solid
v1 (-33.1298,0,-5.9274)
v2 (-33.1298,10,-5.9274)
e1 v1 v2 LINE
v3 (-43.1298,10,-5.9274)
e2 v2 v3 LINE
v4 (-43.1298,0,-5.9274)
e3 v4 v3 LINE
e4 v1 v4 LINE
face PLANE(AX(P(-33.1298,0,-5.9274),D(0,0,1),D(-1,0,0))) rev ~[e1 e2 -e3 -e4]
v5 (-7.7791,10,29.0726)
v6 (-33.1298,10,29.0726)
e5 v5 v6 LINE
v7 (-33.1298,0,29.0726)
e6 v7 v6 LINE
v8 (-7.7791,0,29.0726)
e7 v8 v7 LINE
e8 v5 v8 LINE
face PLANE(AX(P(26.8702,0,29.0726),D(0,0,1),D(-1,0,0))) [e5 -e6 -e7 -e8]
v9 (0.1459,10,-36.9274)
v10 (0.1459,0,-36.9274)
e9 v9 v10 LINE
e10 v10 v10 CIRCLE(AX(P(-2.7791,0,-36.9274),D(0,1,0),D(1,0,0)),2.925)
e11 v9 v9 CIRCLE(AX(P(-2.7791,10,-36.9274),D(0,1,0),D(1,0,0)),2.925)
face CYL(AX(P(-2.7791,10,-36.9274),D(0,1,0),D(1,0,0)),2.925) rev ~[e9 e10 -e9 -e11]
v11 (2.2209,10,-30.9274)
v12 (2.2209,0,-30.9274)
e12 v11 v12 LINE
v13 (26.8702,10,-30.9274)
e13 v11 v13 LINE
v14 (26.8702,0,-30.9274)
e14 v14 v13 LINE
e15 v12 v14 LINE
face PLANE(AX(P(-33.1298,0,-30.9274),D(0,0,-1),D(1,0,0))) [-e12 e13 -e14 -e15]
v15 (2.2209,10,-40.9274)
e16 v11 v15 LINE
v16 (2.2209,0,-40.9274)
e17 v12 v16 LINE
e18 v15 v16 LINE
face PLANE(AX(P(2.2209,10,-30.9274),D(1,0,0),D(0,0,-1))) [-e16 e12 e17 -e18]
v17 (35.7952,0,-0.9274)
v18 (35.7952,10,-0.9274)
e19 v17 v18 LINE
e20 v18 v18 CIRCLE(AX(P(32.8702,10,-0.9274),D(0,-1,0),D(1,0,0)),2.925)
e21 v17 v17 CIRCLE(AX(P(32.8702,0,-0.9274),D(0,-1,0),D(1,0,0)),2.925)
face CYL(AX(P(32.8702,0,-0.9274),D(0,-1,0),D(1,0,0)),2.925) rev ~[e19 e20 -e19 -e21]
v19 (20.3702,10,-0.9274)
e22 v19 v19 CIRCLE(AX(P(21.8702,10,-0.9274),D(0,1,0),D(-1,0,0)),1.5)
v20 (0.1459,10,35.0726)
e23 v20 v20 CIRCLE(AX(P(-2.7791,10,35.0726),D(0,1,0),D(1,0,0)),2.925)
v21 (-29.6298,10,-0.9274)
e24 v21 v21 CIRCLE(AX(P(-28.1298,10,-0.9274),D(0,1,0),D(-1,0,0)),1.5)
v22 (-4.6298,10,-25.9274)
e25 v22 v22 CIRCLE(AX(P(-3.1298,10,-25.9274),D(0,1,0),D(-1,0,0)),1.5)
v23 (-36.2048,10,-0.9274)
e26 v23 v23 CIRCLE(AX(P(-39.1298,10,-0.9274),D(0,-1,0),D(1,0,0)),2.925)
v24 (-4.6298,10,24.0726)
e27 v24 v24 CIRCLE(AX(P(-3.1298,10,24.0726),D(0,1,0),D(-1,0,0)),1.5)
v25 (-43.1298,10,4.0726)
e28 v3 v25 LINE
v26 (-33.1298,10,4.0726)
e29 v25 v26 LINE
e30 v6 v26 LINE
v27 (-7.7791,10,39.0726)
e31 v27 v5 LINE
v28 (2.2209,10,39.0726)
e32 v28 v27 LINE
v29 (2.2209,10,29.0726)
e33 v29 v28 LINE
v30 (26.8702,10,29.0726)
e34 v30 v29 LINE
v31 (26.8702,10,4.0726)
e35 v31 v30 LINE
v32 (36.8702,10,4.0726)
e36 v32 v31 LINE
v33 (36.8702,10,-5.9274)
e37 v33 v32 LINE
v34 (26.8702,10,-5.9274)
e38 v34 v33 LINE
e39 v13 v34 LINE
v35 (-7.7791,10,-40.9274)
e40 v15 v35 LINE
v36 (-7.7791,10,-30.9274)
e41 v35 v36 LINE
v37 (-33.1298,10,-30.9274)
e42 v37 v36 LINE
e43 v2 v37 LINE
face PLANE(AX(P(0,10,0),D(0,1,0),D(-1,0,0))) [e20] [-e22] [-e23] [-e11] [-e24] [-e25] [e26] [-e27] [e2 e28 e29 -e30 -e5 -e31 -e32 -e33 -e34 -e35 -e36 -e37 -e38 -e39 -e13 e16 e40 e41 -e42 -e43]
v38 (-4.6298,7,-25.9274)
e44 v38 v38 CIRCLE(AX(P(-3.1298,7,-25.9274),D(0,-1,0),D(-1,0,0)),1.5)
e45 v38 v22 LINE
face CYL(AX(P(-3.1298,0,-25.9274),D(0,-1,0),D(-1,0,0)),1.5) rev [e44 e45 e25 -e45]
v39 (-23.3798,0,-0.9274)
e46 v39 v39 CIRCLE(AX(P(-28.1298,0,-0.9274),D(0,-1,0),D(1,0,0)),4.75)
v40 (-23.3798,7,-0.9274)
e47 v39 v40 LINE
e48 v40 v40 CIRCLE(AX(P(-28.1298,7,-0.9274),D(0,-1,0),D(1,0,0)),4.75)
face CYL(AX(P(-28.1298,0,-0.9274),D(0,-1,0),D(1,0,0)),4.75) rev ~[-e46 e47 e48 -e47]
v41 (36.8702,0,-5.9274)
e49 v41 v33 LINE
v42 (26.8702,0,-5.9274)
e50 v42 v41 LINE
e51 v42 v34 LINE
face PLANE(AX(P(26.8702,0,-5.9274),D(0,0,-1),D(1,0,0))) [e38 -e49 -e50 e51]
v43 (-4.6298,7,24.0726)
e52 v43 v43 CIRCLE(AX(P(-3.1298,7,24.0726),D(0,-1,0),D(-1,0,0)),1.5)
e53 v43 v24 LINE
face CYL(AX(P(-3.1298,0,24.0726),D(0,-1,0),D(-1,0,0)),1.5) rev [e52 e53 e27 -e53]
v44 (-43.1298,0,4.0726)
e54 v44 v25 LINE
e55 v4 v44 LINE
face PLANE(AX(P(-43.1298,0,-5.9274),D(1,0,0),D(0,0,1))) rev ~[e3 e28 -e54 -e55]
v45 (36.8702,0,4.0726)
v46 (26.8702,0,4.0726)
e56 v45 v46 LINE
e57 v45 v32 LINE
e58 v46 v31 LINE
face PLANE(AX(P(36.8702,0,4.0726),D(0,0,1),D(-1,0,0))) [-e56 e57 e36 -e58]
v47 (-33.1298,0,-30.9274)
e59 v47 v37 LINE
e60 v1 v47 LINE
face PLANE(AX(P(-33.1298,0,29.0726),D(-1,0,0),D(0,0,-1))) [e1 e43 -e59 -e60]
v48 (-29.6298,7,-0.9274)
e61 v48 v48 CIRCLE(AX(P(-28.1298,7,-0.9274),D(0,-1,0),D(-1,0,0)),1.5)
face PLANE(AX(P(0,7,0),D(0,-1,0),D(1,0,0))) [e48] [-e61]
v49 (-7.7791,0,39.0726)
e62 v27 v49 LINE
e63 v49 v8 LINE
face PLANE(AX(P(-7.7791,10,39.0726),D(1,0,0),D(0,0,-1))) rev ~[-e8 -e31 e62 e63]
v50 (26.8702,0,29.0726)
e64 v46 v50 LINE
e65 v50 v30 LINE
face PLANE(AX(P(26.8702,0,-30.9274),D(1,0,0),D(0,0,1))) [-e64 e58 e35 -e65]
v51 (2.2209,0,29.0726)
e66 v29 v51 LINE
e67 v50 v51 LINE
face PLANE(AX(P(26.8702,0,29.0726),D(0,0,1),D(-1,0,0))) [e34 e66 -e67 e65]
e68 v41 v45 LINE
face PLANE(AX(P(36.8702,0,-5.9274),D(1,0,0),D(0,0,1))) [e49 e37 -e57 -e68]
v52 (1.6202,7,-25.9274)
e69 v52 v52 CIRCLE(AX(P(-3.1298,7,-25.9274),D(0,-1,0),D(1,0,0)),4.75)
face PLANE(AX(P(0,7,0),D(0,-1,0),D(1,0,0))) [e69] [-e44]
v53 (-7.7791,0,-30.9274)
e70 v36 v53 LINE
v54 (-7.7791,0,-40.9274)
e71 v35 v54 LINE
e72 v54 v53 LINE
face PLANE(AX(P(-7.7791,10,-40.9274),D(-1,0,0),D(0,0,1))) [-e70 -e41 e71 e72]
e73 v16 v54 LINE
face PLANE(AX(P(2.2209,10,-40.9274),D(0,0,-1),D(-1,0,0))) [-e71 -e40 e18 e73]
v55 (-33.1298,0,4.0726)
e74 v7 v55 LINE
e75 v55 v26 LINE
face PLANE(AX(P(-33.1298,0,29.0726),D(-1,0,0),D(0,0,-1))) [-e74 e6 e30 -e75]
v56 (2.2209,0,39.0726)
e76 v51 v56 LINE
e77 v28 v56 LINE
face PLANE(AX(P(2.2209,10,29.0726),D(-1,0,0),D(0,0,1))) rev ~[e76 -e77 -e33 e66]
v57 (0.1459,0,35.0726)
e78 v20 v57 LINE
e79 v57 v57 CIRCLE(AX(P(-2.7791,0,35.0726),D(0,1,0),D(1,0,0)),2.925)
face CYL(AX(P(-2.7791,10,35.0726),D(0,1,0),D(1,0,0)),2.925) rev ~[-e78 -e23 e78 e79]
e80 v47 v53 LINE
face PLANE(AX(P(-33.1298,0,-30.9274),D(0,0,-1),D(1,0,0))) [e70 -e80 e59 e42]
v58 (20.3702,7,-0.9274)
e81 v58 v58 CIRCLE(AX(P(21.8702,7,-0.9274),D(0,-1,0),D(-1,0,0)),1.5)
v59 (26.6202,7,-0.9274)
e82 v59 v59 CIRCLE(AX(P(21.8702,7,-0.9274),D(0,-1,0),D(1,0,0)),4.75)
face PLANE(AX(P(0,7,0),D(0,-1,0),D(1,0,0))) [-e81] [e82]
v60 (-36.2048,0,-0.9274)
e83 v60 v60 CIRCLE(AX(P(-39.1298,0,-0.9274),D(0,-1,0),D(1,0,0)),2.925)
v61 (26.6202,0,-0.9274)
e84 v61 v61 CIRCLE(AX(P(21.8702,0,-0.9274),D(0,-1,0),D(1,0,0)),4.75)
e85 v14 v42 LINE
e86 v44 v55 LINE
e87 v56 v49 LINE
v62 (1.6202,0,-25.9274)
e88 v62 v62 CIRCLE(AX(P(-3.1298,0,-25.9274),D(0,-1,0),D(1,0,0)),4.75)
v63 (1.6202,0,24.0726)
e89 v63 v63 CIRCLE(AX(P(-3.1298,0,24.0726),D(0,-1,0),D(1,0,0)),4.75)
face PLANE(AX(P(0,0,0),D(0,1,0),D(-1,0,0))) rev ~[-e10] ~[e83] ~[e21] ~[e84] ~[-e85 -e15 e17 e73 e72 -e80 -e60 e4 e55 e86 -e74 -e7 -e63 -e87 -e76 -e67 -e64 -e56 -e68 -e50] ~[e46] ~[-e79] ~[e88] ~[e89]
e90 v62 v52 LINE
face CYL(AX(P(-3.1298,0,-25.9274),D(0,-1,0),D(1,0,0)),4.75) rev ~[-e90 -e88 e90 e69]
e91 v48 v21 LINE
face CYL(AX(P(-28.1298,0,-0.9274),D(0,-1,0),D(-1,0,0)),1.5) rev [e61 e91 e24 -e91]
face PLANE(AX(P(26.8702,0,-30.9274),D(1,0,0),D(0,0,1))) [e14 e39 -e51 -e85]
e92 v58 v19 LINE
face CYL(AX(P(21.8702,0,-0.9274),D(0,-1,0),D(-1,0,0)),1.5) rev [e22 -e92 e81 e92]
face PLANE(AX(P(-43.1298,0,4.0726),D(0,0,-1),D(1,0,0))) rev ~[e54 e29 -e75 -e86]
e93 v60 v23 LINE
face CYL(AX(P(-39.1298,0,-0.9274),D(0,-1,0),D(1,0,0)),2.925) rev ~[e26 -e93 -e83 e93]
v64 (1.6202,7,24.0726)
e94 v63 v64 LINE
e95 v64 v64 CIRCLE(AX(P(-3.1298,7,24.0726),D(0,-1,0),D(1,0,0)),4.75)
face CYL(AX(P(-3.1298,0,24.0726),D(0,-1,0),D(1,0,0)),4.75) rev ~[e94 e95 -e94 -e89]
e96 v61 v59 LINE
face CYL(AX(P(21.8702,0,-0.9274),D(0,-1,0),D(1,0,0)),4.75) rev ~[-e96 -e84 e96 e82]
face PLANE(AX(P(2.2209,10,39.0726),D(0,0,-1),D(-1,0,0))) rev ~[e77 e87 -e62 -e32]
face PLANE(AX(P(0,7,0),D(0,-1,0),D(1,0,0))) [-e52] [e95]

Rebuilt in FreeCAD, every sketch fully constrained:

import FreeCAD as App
import Part
import Sketcher
Q = App.Units.Quantity

doc = App.newDocument("Part")
body = doc.addObject("PartDesign::Body", "Body")

# Sketch on XZ plane
sketch1 = body.newObject("Sketcher::SketchObject", "Sketch")
sketch1.AttachmentSupport = (doc.getObject("XZ_Plane"), [""])
sketch1.MapMode = "FlatFace"
sketch1.addGeometry([
    Part.LineSegment(App.Vector(26.9, -30.9, 0), App.Vector(-33.1, -30.9, 0)),  # 0
    Part.LineSegment(App.Vector(-33.1, -30.9, 0), App.Vector(-33.1, 29.1, 0)),  # 1
    Part.LineSegment(App.Vector(-33.1, 29.1, 0), App.Vector(26.9, 29.1, 0)),  # 2
    Part.LineSegment(App.Vector(26.9, 29.1, 0), App.Vector(26.9, -30.9, 0)),  # 3
    Part.Circle(App.Vector(-3.1, -25.9, 0), App.Vector(0, 0, 1), 1.5),  # 4
    Part.Circle(App.Vector(21.9, -0.9, 0), App.Vector(0, 0, 1), 1.5),  # 5
    Part.Circle(App.Vector(-28.1, -0.9, 0), App.Vector(0, 0, 1), 1.5),  # 6
    Part.Circle(App.Vector(-3.1, 24.1, 0), App.Vector(0, 0, 1), 1.5),  # 7
], False)
sketch1.addConstraint([
    Sketcher.Constraint("Coincident", 0, 2, 1, 1),
    Sketcher.Constraint("Coincident", 1, 2, 2, 1),
    Sketcher.Constraint("Coincident", 2, 2, 3, 1),
    Sketcher.Constraint("Coincident", 3, 2, 0, 1),
    Sketcher.Constraint("Horizontal", 0),
    Sketcher.Constraint("Vertical", 1),
    Sketcher.Constraint("Horizontal", 2),
    Sketcher.Constraint("Vertical", 3),
    Sketcher.Constraint("Equal", 4, 5),
    Sketcher.Constraint("Equal", 5, 6),
    Sketcher.Constraint("Equal", 6, 7),
    Sketcher.Constraint("Horizontal", 5, 3, 6, 3),
    Sketcher.Constraint("Vertical", 4, 3, 7, 3),
    Sketcher.Constraint("Equal", 2, 1),
    Sketcher.Constraint("Diameter", 4, Q("3 mm")),
    Sketcher.Constraint("DistanceX", 0, 2, 0, 1, Q("60 mm")),
    Sketcher.Constraint("DistanceX", 6, 3, 5, 3, Q("50 mm")),
    Sketcher.Constraint("DistanceY", 4, 3, 7, 3, Q("50 mm")),
    Sketcher.Constraint("DistanceX", 0, 2, 6, 3, Q("5 mm")),
    Sketcher.Constraint("DistanceY", 0, 2, 6, 3, Q("30 mm")),
    Sketcher.Constraint("DistanceX", 0, 2, 4, 3, Q("30 mm")),
    Sketcher.Constraint("DistanceY", 0, 2, 4, 3, Q("5 mm")),
    Sketcher.Constraint("DistanceX", 4, 3, -1, 1, Q("3.1298 mm")),
    Sketcher.Constraint("DistanceY", 4, 3, -1, 1, Q("25.9274 mm")),
])
pad1 = body.newObject("PartDesign::Pad", "Pad")
pad1.Profile = sketch1
pad1.Length = 10
pad1.Reversed = True

# Sketch on XZ plane
sketch2 = body.newObject("Sketcher::SketchObject", "Sketch001")
sketch2.AttachmentSupport = (doc.getObject("XZ_Plane"), [""])
sketch2.MapMode = "FlatFace"
sketch2.AttachmentOffset = App.Placement(App.Vector(0, 0, -10), App.Rotation())
sketch2.addGeometry([
    Part.LineSegment(App.Vector(-8, -31, 0), App.Vector(2, -31, 0)),  # 0
    Part.LineSegment(App.Vector(2, -31, 0), App.Vector(2, -41, 0)),  # 1
    Part.LineSegment(App.Vector(2, -41, 0), App.Vector(-8, -41, 0)),  # 2
    Part.LineSegment(App.Vector(-8, -41, 0), App.Vector(-8, -31, 0)),  # 3
    Part.LineSegment(App.Vector(2, 29, 0), App.Vector(-8, 29, 0)),  # 4
    Part.LineSegment(App.Vector(-8, 29, 0), App.Vector(-8, 39, 0)),  # 5
    Part.LineSegment(App.Vector(-8, 39, 0), App.Vector(2, 39, 0)),  # 6
    Part.LineSegment(App.Vector(2, 39, 0), App.Vector(2, 29, 0)),  # 7
], False)
sketch2.addConstraint([
    Sketcher.Constraint("Coincident", 0, 2, 1, 1),
    Sketcher.Constraint("Coincident", 1, 2, 2, 1),
    Sketcher.Constraint("Coincident", 2, 2, 3, 1),
    Sketcher.Constraint("Coincident", 3, 2, 0, 1),
    Sketcher.Constraint("Coincident", 4, 2, 5, 1),
    Sketcher.Constraint("Coincident", 5, 2, 6, 1),
    Sketcher.Constraint("Coincident", 6, 2, 7, 1),
    Sketcher.Constraint("Coincident", 7, 2, 4, 1),
    Sketcher.Constraint("Horizontal", 0),
    Sketcher.Constraint("Vertical", 1),
    Sketcher.Constraint("Horizontal", 2),
    Sketcher.Constraint("Vertical", 3),
    Sketcher.Constraint("Horizontal", 4),
    Sketcher.Constraint("Vertical", 5),
    Sketcher.Constraint("Horizontal", 6),
    Sketcher.Constraint("Vertical", 7),
    Sketcher.Constraint("Vertical", 3, 2, 4, 2),
    Sketcher.Constraint("Vertical", 1, 2, 6, 2),
    Sketcher.Constraint("Equal", 6, 1),
    Sketcher.Constraint("Equal", 3, 5),
    Sketcher.Constraint("DistanceX", 0, 1, 0, 2, Q("10 mm")),
    Sketcher.Constraint("DistanceY", 3, 2, 4, 2, Q("60 mm")),
    Sketcher.Constraint("DistanceX", -1, 1, 0, 2, Q("2.221 mm")),
    Sketcher.Constraint("DistanceY", 0, 2, -1, 1, Q("30.9274 mm")),
])
pad2 = body.newObject("PartDesign::Pad", "Pad001")
pad2.Profile = sketch2
pad2.Length = 10

# Sketch on XZ plane
sketch3 = body.newObject("Sketcher::SketchObject", "Sketch002")
sketch3.AttachmentSupport = (doc.getObject("XZ_Plane"), [""])
sketch3.MapMode = "FlatFace"
sketch3.AttachmentOffset = App.Placement(App.Vector(0, 0, -10), App.Rotation())
sketch3.addGeometry([
    Part.Circle(App.Vector(-2.8, -36.9, 0), App.Vector(0, 0, 1), 2.9),
    Part.Circle(App.Vector(-2.8, 35.1, 0), App.Vector(0, 0, 1), 2.9),
], False)
sketch3.addConstraint([
    Sketcher.Constraint("Equal", 0, 1),
    Sketcher.Constraint("Vertical", 0, 3, 1, 3),
    Sketcher.Constraint("Diameter", 0, Q("5.85 mm")),
    Sketcher.Constraint("DistanceY", 0, 3, 1, 3, Q("72 mm")),
    Sketcher.Constraint("DistanceX", 0, 3, -1, 1, Q("2.779 mm")),
    Sketcher.Constraint("DistanceY", 0, 3, -1, 1, Q("36.9274 mm")),
])
pocket1 = body.newObject("PartDesign::Pocket", "Pocket")
pocket1.Profile = sketch3
pocket1.Type = "ThroughAll"
pocket1.Reversed = True

# Sketch on XZ plane
sketch4 = body.newObject("Sketcher::SketchObject", "Sketch003")
sketch4.AttachmentSupport = (doc.getObject("XZ_Plane"), [""])
sketch4.MapMode = "FlatFace"
sketch4.addGeometry([
    Part.Circle(App.Vector(-3.1, 24.1, 0), App.Vector(0, 0, 1), 4.8),  # 0
    Part.Circle(App.Vector(-3.1, 24.1, 0), App.Vector(0, 0, 1), 1.5),  # 1
    Part.Circle(App.Vector(21.9, -0.9, 0), App.Vector(0, 0, 1), 4.8),  # 2
    Part.Circle(App.Vector(21.9, -0.9, 0), App.Vector(0, 0, 1), 1.5),  # 3
    Part.Circle(App.Vector(-3.1, -25.9, 0), App.Vector(0, 0, 1), 4.8),  # 4
    Part.Circle(App.Vector(-3.1, -25.9, 0), App.Vector(0, 0, 1), 1.5),  # 5
    Part.Circle(App.Vector(-28.1, -0.9, 0), App.Vector(0, 0, 1), 4.8),  # 6
    Part.Circle(App.Vector(-28.1, -0.9, 0), App.Vector(0, 0, 1), 1.5),  # 7
], False)
sketch4.addConstraint([
    Sketcher.Constraint("Coincident", 1, 3, 0, 3),
    Sketcher.Constraint("Coincident", 3, 3, 2, 3),
    Sketcher.Constraint("Coincident", 5, 3, 4, 3),
    Sketcher.Constraint("Coincident", 7, 3, 6, 3),
    Sketcher.Constraint("Equal", 0, 2),
    Sketcher.Constraint("Equal", 1, 3),
    Sketcher.Constraint("Equal", 2, 4),
    Sketcher.Constraint("Equal", 3, 5),
    Sketcher.Constraint("Equal", 4, 6),
    Sketcher.Constraint("Equal", 5, 7),
    Sketcher.Constraint("Horizontal", 3, 3, 6, 3),
    Sketcher.Constraint("Vertical", 1, 3, 4, 3),
    Sketcher.Constraint("Diameter", 0, Q("9.5 mm")),
    Sketcher.Constraint("Diameter", 1, Q("3 mm")),
    Sketcher.Constraint("DistanceX", 0, 3, 2, 3, Q("25 mm")),
    Sketcher.Constraint("DistanceY", 2, 3, 0, 3, Q("25 mm")),
    Sketcher.Constraint("DistanceY", 4, 3, 2, 3, Q("25 mm")),
    Sketcher.Constraint("DistanceX", 6, 3, 0, 3, Q("25 mm")),
    Sketcher.Constraint("DistanceX", 0, 3, -1, 1, Q("3.1298 mm")),
    Sketcher.Constraint("DistanceY", -1, 1, 0, 3, Q("24.0726 mm")),
])
pocket2 = body.newObject("PartDesign::Pocket", "Pocket001")
pocket2.Profile = sketch4
pocket2.Length = 7

# Sketch on XZ plane
sketch5 = body.newObject("Sketcher::SketchObject", "Sketch004")
sketch5.AttachmentSupport = (doc.getObject("XZ_Plane"), [""])
sketch5.MapMode = "FlatFace"
sketch5.addGeometry([
    Part.LineSegment(App.Vector(-33, -6, 0), App.Vector(-33, 4, 0)),  # 0
    Part.LineSegment(App.Vector(-33, 4, 0), App.Vector(-43, 4, 0)),  # 1
    Part.LineSegment(App.Vector(-43, 4, 0), App.Vector(-43, -6, 0)),  # 2
    Part.LineSegment(App.Vector(-43, -6, 0), App.Vector(-33, -6, 0)),  # 3
    Part.LineSegment(App.Vector(37, 4, 0), App.Vector(27, 4, 0)),  # 4
    Part.LineSegment(App.Vector(27, 4, 0), App.Vector(27, -6, 0)),  # 5
    Part.LineSegment(App.Vector(27, -6, 0), App.Vector(37, -6, 0)),  # 6
    Part.LineSegment(App.Vector(37, -6, 0), App.Vector(37, 4, 0)),  # 7
], False)
sketch5.addConstraint([
    Sketcher.Constraint("Coincident", 0, 2, 1, 1),
    Sketcher.Constraint("Coincident", 1, 2, 2, 1),
    Sketcher.Constraint("Coincident", 2, 2, 3, 1),
    Sketcher.Constraint("Coincident", 3, 2, 0, 1),
    Sketcher.Constraint("Coincident", 4, 2, 5, 1),
    Sketcher.Constraint("Coincident", 5, 2, 6, 1),
    Sketcher.Constraint("Coincident", 6, 2, 7, 1),
    Sketcher.Constraint("Coincident", 7, 2, 4, 1),
    Sketcher.Constraint("Vertical", 0),
    Sketcher.Constraint("Horizontal", 1),
    Sketcher.Constraint("Vertical", 2),
    Sketcher.Constraint("Horizontal", 3),
    Sketcher.Constraint("Horizontal", 4),
    Sketcher.Constraint("Vertical", 5),
    Sketcher.Constraint("Horizontal", 6),
    Sketcher.Constraint("Vertical", 7),
    Sketcher.Constraint("Horizontal", 1, 2, 4, 2),
    Sketcher.Constraint("Horizontal", 3, 2, 5, 2),
    Sketcher.Constraint("Equal", 3, 4),
    Sketcher.Constraint("Equal", 6, 0),
    Sketcher.Constraint("DistanceX", 1, 2, 1, 1, Q("10 mm")),
    Sketcher.Constraint("DistanceX", 0, 2, 4, 2, Q("60 mm")),
    Sketcher.Constraint("DistanceX", 0, 2, -1, 1, Q("33.1298 mm")),
    Sketcher.Constraint("DistanceY", -1, 1, 0, 2, Q("4.0726 mm")),
])
pad3 = body.newObject("PartDesign::Pad", "Pad002")
pad3.Profile = sketch5
pad3.Length = 10
pad3.Reversed = True

# Sketch on XZ plane
sketch6 = body.newObject("Sketcher::SketchObject", "Sketch005")
sketch6.AttachmentSupport = (doc.getObject("XZ_Plane"), [""])
sketch6.MapMode = "FlatFace"
sketch6.addGeometry([
    Part.Circle(App.Vector(-39.1, -0.9, 0), App.Vector(0, 0, 1), 2.9),
    Part.Circle(App.Vector(32.9, -0.9, 0), App.Vector(0, 0, 1), 2.9),
], False)
sketch6.addConstraint([
    Sketcher.Constraint("Equal", 0, 1),
    Sketcher.Constraint("Horizontal", 0, 3, 1, 3),
    Sketcher.Constraint("Diameter", 0, Q("5.85 mm")),
    Sketcher.Constraint("DistanceX", 0, 3, 1, 3, Q("72 mm")),
    Sketcher.Constraint("DistanceX", 0, 3, -1, 1, Q("39.1298 mm")),
    Sketcher.Constraint("DistanceY", 0, 3, -1, 1, Q("0.9274 mm")),
])
pocket3 = body.newObject("PartDesign::Pocket", "Pocket002")
pocket3.Profile = sketch6
pocket3.Type = "ThroughAll"

doc.recompute()
